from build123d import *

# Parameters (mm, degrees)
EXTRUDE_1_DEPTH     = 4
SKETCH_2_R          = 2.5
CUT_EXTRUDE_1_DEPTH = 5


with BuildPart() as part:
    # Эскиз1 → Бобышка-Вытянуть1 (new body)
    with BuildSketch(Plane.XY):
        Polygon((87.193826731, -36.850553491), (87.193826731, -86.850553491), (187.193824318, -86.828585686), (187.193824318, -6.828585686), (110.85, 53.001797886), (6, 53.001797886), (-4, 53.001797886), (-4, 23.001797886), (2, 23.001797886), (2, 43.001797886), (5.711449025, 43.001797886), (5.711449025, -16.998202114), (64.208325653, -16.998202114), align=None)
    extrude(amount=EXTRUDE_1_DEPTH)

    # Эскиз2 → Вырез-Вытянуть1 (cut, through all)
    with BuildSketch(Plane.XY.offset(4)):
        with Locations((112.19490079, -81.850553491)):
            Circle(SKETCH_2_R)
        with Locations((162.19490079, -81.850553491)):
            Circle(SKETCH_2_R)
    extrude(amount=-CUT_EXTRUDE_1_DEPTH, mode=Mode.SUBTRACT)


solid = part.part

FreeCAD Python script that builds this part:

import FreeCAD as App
import Part
import Sketcher
Q = App.Units.Quantity

doc = App.newDocument("Part")
body = doc.addObject("PartDesign::Body", "Body")

# Sketch on XY plane
sketch1 = body.newObject("Sketcher::SketchObject", "Sketch")
sketch1.AttachmentSupport = (doc.getObject("XY_Plane"), [""])
sketch1.MapMode = "FlatFace"
sketch1.addGeometry([
    Part.LineSegment(App.Vector(87.193827, -36.850553, 0), App.Vector(87.193827, -86.850553, 0)),  # 0
    Part.LineSegment(App.Vector(87.193827, -86.850553, 0), App.Vector(187.193824, -86.828586, 0)),  # 1
    Part.LineSegment(App.Vector(187.193824, -86.828586, 0), App.Vector(187.193824, -6.828586, 0)),  # 2
    Part.LineSegment(App.Vector(187.193824, -6.828586, 0), App.Vector(110.85, 53.001798, 0)),  # 3
    Part.LineSegment(App.Vector(110.85, 53.001798, 0), App.Vector(-4, 53.001798, 0)),  # 4
    Part.LineSegment(App.Vector(-4, 53.001798, 0), App.Vector(-4, 23.001798, 0)),  # 5
    Part.LineSegment(App.Vector(-4, 23.001798, 0), App.Vector(2, 23.001798, 0)),  # 6
    Part.LineSegment(App.Vector(2, 23.001798, 0), App.Vector(2, 43.001798, 0)),  # 7
    Part.LineSegment(App.Vector(2, 43.001798, 0), App.Vector(5.711449, 43.001798, 0)),  # 8
    Part.LineSegment(App.Vector(5.711449, 43.001798, 0), App.Vector(5.711449, -16.998202, 0)),  # 9
    Part.LineSegment(App.Vector(5.711449, -16.998202, 0), App.Vector(64.208326, -16.998202, 0)),  # 10
    Part.LineSegment(App.Vector(64.208326, -16.998202, 0), App.Vector(87.193827, -36.850553, 0)),  # 11
], False)
sketch1.addConstraint([
    Sketcher.Constraint("Coincident", 0, 2, 1, 1),
    Sketcher.Constraint("Coincident", 1, 2, 2, 1),
    Sketcher.Constraint("Coincident", 2, 2, 3, 1),
    Sketcher.Constraint("Coincident", 3, 2, 4, 1),
    Sketcher.Constraint("Coincident", 4, 2, 5, 1),
    Sketcher.Constraint("Coincident", 5, 2, 6, 1),
    Sketcher.Constraint("Coincident", 6, 2, 7, 1),
    Sketcher.Constraint("Coincident", 7, 2, 8, 1),
    Sketcher.Constraint("Coincident", 8, 2, 9, 1),
    Sketcher.Constraint("Coincident", 9, 2, 10, 1),
    Sketcher.Constraint("Coincident", 10, 2, 11, 1),
    Sketcher.Constraint("Coincident", 11, 2, 0, 1),
    Sketcher.Constraint("Vertical", 0),
    Sketcher.Constraint("Vertical", 2),
    Sketcher.Constraint("Horizontal", 4),
    Sketcher.Constraint("Vertical", 5),
    Sketcher.Constraint("Horizontal", 6),
    Sketcher.Constraint("Vertical", 7),
    Sketcher.Constraint("Horizontal", 8),
    Sketcher.Constraint("Vertical", 9),
    Sketcher.Constraint("Horizontal", 10),
    Sketcher.Constraint("DistanceX", 6, 1, 6, 2, Q("6 mm")),
    Sketcher.Constraint("DistanceY", 0, 2, 0, 1, Q("50 mm")),
    Sketcher.Constraint("DistanceY", 2, 1, 2, 2, Q("80 mm")),
    Sketcher.Constraint("DistanceY", 5, 2, 5, 1, Q("30 mm")),
    Sketcher.Constraint("DistanceY", 7, 1, 7, 2, Q("20 mm")),
    Sketcher.Constraint("DistanceY", 9, 2, 9, 1, Q("60 mm")),
    Sketcher.Constraint("Distance", 1, Q("100 mm")),
    Sketcher.Constraint("DistanceX", 4, 2, -1, 1, Q("4 mm")),
    Sketcher.Constraint("DistanceX", 4, 2, 4, 1, Q("114.85 mm")),
    Sketcher.Constraint("DistanceX", 8, 1, 8, 2, Q("3.711449 mm")),
    Sketcher.Constraint("DistanceX", 10, 2, 0, 2, Q("22.985501 mm")),
    Sketcher.Constraint("DistanceX", 10, 1, 10, 2, Q("58.496877 mm")),
    Sketcher.Constraint("DistanceY", 0, 2, 3, 2, Q("139.852351 mm")),
    Sketcher.Constraint("Distance", 3, Q("96.995125 mm")),
    Sketcher.Constraint("DistanceY", 0, 2, -1, 1, Q("86.850553 mm")),
])
pad1 = body.newObject("PartDesign::Pad", "Pad")
pad1.Profile = sketch1
pad1.Length = 4

# Sketch on XY plane
sketch2 = body.newObject("Sketcher::SketchObject", "Sketch001")
sketch2.AttachmentSupport = (doc.getObject("XY_Plane"), [""])
sketch2.MapMode = "FlatFace"
sketch2.AttachmentOffset = App.Placement(App.Vector(0, 0, 4), App.Rotation())
sketch2.addGeometry([
    Part.Circle(App.Vector(112.194901, -81.850553, 0), App.Vector(0, 0, 1), 2.5),
    Part.Circle(App.Vector(162.194901, -81.850553, 0), App.Vector(0, 0, 1), 2.5),
], False)
sketch2.addConstraint([
    Sketcher.Constraint("Equal", 0, 1),
    Sketcher.Constraint("Horizontal", 0, 3, 1, 3),
    Sketcher.Constraint("Diameter", 0, Q("5 mm")),
    Sketcher.Constraint("DistanceX", 0, 3, 1, 3, Q("50 mm")),
    Sketcher.Constraint("DistanceX", -1, 1, 0, 3, Q("112.194901 mm")),
    Sketcher.Constraint("DistanceY", 0, 3, -1, 1, Q("81.850553 mm")),
])
pocket1 = body.newObject("PartDesign::Pocket", "Pocket")
pocket1.Profile = sketch2
pocket1.Type = "ThroughAll"

doc.recompute()
